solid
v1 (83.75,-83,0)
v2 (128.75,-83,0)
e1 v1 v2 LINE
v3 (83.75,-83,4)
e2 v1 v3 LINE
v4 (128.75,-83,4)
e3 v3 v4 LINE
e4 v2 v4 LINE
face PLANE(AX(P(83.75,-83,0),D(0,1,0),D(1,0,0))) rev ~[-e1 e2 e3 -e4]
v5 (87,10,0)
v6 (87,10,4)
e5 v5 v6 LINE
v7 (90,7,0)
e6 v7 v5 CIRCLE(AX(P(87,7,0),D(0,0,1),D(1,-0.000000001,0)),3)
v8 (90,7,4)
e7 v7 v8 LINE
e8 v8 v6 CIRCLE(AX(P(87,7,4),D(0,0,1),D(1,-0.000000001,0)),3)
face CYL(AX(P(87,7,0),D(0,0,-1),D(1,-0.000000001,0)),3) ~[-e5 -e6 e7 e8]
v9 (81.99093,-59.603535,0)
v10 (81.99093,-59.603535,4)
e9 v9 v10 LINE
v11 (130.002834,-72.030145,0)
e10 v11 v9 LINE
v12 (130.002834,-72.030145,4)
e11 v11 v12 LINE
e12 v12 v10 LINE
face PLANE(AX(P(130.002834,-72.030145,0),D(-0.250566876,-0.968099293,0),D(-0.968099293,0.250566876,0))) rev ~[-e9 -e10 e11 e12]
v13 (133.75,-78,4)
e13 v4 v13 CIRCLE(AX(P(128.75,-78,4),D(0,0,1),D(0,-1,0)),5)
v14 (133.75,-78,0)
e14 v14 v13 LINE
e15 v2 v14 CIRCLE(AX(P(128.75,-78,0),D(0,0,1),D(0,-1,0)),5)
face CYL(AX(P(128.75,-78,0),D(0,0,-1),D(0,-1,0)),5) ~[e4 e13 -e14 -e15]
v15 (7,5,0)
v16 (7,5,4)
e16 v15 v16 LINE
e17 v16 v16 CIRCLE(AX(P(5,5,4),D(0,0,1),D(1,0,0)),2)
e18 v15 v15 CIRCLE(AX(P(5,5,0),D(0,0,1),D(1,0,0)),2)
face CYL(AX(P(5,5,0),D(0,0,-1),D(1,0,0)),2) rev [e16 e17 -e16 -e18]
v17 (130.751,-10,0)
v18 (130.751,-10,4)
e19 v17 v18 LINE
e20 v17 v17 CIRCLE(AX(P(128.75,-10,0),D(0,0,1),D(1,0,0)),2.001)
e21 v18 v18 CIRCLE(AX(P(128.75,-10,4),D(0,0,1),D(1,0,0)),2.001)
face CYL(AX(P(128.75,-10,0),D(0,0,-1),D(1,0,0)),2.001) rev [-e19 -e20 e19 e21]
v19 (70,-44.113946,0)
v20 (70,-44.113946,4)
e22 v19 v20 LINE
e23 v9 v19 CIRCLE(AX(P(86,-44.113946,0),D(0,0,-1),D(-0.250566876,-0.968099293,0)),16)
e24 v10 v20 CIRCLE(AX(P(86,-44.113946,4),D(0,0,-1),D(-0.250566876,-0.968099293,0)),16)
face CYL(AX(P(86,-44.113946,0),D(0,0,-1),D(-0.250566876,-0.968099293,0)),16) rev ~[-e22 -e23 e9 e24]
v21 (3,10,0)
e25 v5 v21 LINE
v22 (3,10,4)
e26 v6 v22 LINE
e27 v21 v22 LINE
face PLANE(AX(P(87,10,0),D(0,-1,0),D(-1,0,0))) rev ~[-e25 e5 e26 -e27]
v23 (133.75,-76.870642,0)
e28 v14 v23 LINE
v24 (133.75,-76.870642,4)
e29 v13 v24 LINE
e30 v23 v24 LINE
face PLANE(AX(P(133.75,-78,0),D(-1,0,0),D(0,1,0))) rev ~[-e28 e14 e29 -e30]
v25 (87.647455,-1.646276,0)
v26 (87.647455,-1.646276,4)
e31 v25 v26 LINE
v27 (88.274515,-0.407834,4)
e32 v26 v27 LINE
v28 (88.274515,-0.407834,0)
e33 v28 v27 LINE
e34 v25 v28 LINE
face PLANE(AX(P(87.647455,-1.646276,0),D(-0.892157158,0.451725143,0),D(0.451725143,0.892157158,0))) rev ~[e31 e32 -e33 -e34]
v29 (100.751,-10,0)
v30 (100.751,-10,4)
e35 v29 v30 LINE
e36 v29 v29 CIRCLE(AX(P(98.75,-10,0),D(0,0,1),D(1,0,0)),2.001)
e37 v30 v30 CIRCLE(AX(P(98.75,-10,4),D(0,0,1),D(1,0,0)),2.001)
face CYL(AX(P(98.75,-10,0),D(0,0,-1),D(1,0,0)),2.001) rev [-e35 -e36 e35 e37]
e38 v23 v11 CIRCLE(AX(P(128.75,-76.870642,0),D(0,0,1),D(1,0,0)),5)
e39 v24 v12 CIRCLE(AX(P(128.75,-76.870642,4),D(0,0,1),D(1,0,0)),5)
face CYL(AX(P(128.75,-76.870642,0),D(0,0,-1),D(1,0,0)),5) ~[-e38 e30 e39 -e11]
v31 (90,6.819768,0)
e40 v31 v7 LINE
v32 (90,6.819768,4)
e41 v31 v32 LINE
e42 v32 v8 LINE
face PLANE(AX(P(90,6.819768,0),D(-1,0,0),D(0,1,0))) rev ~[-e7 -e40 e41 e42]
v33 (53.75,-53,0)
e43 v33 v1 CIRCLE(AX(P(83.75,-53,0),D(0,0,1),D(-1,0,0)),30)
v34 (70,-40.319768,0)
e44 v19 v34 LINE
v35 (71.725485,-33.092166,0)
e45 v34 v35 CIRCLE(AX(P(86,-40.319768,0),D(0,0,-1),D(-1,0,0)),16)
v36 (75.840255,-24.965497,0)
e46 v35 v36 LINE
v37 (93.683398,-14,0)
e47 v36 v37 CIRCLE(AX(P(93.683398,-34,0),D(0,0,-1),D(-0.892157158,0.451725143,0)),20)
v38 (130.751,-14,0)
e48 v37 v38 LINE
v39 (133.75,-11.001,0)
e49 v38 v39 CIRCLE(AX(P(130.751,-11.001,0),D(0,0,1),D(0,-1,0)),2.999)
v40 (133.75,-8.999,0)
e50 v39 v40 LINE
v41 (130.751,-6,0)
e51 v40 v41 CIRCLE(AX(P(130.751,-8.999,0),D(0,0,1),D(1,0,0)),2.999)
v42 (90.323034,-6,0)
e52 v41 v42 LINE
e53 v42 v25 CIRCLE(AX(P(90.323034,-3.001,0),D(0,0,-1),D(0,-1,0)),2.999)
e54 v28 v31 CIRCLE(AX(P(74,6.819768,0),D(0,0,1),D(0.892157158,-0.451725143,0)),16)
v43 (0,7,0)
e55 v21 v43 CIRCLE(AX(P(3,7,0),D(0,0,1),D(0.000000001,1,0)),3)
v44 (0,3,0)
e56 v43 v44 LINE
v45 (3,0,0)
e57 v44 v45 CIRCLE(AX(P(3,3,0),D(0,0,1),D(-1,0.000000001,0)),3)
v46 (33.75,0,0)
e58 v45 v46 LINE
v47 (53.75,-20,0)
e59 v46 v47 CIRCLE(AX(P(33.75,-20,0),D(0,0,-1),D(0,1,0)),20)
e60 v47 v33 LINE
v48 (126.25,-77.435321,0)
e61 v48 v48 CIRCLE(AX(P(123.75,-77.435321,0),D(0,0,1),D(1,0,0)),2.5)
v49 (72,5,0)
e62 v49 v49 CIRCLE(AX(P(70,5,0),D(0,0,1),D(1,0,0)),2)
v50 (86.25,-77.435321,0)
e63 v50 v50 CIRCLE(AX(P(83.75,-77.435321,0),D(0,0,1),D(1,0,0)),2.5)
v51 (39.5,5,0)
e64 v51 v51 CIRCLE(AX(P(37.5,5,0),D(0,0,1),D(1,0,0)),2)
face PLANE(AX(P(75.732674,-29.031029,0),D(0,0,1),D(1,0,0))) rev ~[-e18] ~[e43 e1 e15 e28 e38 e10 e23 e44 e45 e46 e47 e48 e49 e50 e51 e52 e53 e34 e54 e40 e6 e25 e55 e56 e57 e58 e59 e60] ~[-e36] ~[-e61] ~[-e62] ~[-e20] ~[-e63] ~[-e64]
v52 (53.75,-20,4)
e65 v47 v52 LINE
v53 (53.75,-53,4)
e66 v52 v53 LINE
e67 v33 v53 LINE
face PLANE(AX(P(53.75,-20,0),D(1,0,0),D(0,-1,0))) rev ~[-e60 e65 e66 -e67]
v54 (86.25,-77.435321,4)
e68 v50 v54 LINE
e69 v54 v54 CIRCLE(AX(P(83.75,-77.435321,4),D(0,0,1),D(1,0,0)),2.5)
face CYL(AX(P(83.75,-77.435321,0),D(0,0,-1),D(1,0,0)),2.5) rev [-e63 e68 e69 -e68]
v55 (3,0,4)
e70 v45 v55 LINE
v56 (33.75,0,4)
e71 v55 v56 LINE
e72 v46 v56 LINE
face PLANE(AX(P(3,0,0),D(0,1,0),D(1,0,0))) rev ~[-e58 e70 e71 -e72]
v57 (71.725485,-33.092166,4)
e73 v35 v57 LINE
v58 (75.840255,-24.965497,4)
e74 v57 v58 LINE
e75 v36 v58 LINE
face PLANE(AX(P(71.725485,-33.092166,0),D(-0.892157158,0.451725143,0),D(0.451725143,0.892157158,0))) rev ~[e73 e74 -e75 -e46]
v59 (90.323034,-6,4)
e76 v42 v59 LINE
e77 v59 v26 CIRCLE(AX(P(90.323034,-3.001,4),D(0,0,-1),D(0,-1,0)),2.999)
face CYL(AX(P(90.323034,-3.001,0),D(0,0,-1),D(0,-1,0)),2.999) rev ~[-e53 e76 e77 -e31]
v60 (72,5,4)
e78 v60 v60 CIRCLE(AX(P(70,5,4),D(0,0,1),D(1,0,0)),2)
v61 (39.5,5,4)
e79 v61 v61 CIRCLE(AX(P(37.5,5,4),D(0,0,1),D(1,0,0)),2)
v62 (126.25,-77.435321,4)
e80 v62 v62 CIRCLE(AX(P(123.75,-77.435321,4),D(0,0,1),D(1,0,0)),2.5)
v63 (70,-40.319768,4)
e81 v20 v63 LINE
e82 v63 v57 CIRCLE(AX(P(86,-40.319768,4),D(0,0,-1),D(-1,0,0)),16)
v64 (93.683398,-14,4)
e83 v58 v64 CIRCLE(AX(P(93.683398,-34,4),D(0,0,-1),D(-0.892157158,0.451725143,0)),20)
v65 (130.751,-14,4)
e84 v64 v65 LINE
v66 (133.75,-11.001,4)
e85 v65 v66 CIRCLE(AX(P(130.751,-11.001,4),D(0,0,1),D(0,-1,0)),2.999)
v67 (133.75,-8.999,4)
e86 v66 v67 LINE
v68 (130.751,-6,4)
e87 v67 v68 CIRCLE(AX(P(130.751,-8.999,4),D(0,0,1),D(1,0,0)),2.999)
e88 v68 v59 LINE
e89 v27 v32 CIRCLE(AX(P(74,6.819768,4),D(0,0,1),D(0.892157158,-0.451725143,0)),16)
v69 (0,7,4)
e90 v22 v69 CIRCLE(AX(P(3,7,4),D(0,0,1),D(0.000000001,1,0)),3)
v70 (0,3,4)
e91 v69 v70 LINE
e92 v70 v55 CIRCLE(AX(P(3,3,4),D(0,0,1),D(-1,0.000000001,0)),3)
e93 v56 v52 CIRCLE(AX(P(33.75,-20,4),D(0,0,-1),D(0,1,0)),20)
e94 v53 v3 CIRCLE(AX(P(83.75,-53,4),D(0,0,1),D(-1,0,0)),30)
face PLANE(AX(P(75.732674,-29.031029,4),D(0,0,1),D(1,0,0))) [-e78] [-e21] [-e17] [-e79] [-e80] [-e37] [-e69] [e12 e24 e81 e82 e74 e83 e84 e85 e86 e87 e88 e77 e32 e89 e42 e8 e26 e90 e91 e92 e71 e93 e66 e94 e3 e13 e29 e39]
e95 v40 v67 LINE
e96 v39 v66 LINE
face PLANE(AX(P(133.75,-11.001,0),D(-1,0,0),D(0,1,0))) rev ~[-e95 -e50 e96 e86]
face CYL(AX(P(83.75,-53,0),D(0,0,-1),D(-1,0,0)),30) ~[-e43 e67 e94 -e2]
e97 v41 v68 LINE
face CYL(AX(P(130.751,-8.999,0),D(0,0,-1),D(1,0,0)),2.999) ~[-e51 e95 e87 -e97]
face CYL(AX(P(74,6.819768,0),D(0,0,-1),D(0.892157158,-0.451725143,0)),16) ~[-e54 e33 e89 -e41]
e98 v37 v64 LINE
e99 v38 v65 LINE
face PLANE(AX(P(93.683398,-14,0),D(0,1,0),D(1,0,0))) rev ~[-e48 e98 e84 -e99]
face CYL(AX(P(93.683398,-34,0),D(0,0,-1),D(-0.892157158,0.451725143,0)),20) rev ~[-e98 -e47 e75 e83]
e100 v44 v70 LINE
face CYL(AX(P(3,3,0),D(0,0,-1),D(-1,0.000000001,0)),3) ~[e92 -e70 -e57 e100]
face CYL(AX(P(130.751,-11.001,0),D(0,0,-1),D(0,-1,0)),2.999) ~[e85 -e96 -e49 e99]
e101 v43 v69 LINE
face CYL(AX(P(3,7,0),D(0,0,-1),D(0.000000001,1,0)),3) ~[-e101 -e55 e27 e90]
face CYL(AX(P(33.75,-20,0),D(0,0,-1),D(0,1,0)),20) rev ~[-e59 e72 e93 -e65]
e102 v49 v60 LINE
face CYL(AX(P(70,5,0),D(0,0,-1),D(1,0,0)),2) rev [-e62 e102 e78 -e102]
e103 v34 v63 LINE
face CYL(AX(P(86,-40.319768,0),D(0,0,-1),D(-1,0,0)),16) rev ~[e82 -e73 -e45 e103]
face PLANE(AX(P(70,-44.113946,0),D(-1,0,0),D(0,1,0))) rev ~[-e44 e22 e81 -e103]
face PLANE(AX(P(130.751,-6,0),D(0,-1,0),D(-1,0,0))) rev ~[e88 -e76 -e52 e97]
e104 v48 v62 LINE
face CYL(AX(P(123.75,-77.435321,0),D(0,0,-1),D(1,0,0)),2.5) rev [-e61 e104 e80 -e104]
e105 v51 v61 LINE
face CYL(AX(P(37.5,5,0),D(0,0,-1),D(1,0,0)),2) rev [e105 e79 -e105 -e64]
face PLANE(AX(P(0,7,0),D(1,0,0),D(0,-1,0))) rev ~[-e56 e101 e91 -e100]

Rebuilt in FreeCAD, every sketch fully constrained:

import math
import FreeCAD as App
import Part
import Sketcher
from FreeCAD import Vector

doc = App.newDocument("Part")
params = doc.addObject("Spreadsheet::Sheet", "Params")
for row, (alias, value) in enumerate([
    ("sketch1_diameter", "5 mm"),
    ("sketch1_diameter2", "4 mm"),
    ("sketch1_radius", "20 mm"),
    ("sketch1_radius2", "30 mm"),
    ("sketch1_radius3", "5 mm"),
    ("pad1_length", "4 mm"),
], start=1):
    params.set(f"A{row}", alias)
    params.set(f"B{row}", "=" + value)
    params.setAlias(f"B{row}", alias)

body = doc.addObject("PartDesign::Body", "Body")

# Sketch on XY plane
sketch1 = doc.addObject("Sketcher::SketchObject", "Sketch")
body.addObject(sketch1)
sketch1.AttachmentSupport = (doc.XY_Plane, [""])
sketch1.MapMode = "FlatFace"
sketch1.addGeometry([
    Part.LineSegment(Vector(3, 0, 0), Vector(33.75, 0, 0)),  # 0
    Part.ArcOfCircle(Part.Circle(Vector(33.75, -20, 0), Vector(0, 0, 1), 20), math.radians(0), math.radians(90)),  # 1
    Part.LineSegment(Vector(53.75, -20, 0), Vector(53.75, -53, 0)),  # 2
    Part.ArcOfCircle(Part.Circle(Vector(83.75, -53, 0), Vector(0, 0, 1), 30), math.radians(180), math.radians(270)),  # 3
    Part.LineSegment(Vector(83.75, -83, 0), Vector(128.75, -83, 0)),  # 4
    Part.ArcOfCircle(Part.Circle(Vector(128.75, -78, 0), Vector(0, 0, 1), 5), math.radians(-90), math.radians(0)),  # 5
    Part.LineSegment(Vector(133.75, -78, 0), Vector(133.75, -76.87, 0)),  # 6
    Part.ArcOfCircle(Part.Circle(Vector(128.75, -76.87, 0), Vector(0, 0, 1), 5), math.radians(0), math.radians(75)),  # 7
    Part.LineSegment(Vector(130, -72.03, 0), Vector(81.99, -59.6, 0)),  # 8
    Part.ArcOfCircle(Part.Circle(Vector(86, -44.11, 0), Vector(0, 0, 1), 16), math.radians(-180), math.radians(-105)),  # 9
    Part.LineSegment(Vector(70, -44.11, 0), Vector(70, -40.32, 0)),  # 10
    Part.ArcOfCircle(Part.Circle(Vector(86, -40.32, 0), Vector(0, 0, 1), 16), math.radians(153), math.radians(180)),  # 11
    Part.LineSegment(Vector(71.73, -33.09, 0), Vector(75.84, -24.97, 0)),  # 12
    Part.ArcOfCircle(Part.Circle(Vector(93.68, -34, 0), Vector(0, 0, 1), 20), math.radians(90), math.radians(153)),  # 13
    Part.LineSegment(Vector(93.68, -14, 0), Vector(130.75, -14, 0)),  # 14
    Part.ArcOfCircle(Part.Circle(Vector(130.75, -11, 0), Vector(0, 0, 1), 3), math.radians(-90), math.radians(0)),  # 15
    Part.LineSegment(Vector(133.75, -11, 0), Vector(133.75, -9, 0)),  # 16
    Part.ArcOfCircle(Part.Circle(Vector(130.75, -9, 0), Vector(0, 0, 1), 3), math.radians(0), math.radians(90)),  # 17
    Part.LineSegment(Vector(130.75, -6, 0), Vector(90.32, -6, 0)),  # 18
    Part.ArcOfCircle(Part.Circle(Vector(90.32, -3, 0), Vector(0, 0, 1), 3), math.radians(153), math.radians(270)),  # 19
    Part.LineSegment(Vector(87.65, -1.65, 0), Vector(88.27, -0.41, 0)),  # 20
    Part.ArcOfCircle(Part.Circle(Vector(74, 6.82, 0), Vector(0, 0, 1), 16), math.radians(-27), math.radians(0)),  # 21
    Part.LineSegment(Vector(90, 6.82, 0), Vector(90, 7, 0)),  # 22
    Part.ArcOfCircle(Part.Circle(Vector(87, 7, 0), Vector(0, 0, 1), 3), math.radians(0), math.radians(90)),  # 23
    Part.LineSegment(Vector(87, 10, 0), Vector(3, 10, 0)),  # 24
    Part.ArcOfCircle(Part.Circle(Vector(3, 7, 0), Vector(0, 0, 1), 3), math.radians(90), math.radians(180)),  # 25
    Part.LineSegment(Vector(0, 7, 0), Vector(0, 3, 0)),  # 26
    Part.ArcOfCircle(Part.Circle(Vector(3, 3, 0), Vector(0, 0, 1), 3), math.radians(180), math.radians(270)),  # 27
    Part.Circle(Vector(83.75, -77.44, 0), Vector(0, 0, 1), 2.5),  # 28
    Part.Circle(Vector(123.75, -77.44, 0), Vector(0, 0, 1), 2.5),  # 29
    Part.Circle(Vector(5, 5, 0), Vector(0, 0, 1), 2),  # 30
    Part.Circle(Vector(37.5, 5, 0), Vector(0, 0, 1), 2),  # 31
    Part.Circle(Vector(98.75, -10, 0), Vector(0, 0, 1), 2),  # 32
    Part.Circle(Vector(70, 5, 0), Vector(0, 0, 1), 2),  # 33
    Part.Circle(Vector(128.75, -10, 0), Vector(0, 0, 1), 2),  # 34
], False)
sketch1.addConstraint([
    Sketcher.Constraint("Tangent", 0, 2, 1, 2),
    Sketcher.Constraint("Tangent", 1, 1, 2, 1),
    Sketcher.Constraint("Tangent", 2, 2, 3, 1),
    Sketcher.Constraint("Tangent", 3, 2, 4, 1),
    Sketcher.Constraint("Tangent", 4, 2, 5, 1),
    Sketcher.Constraint("Tangent", 5, 2, 6, 1),
    Sketcher.Constraint("Tangent", 6, 2, 7, 1),
    Sketcher.Constraint("Tangent", 7, 2, 8, 1),
    Sketcher.Constraint("Tangent", 8, 2, 9, 2),
    Sketcher.Constraint("Tangent", 9, 1, 10, 1),
    Sketcher.Constraint("Tangent", 10, 2, 11, 2),
    Sketcher.Constraint("Tangent", 11, 1, 12, 1),
    Sketcher.Constraint("Tangent", 12, 2, 13, 2),
    Sketcher.Constraint("Tangent", 13, 1, 14, 1),
    Sketcher.Constraint("Tangent", 14, 2, 15, 1),
    Sketcher.Constraint("Tangent", 15, 2, 16, 1),
    Sketcher.Constraint("Tangent", 16, 2, 17, 1),
    Sketcher.Constraint("Tangent", 17, 2, 18, 1),
    Sketcher.Constraint("Tangent", 18, 2, 19, 2),
    Sketcher.Constraint("Tangent", 19, 1, 20, 1),
    Sketcher.Constraint("Tangent", 20, 2, 21, 1),
    Sketcher.Constraint("Tangent", 21, 2, 22, 1),
    Sketcher.Constraint("Tangent", 22, 2, 23, 1),
    Sketcher.Constraint("Tangent", 23, 2, 24, 1),
    Sketcher.Constraint("Tangent", 24, 2, 25, 1),
    Sketcher.Constraint("Tangent", 25, 2, 26, 1),
    Sketcher.Constraint("Tangent", 26, 2, 27, 1),
    Sketcher.Constraint("Tangent", 27, 2, 0, 1),
    Sketcher.Constraint("Horizontal", 0),
    Sketcher.Constraint("Vertical", 2),
    Sketcher.Constraint("Horizontal", 4),
    Sketcher.Constraint("Vertical", 6),
    Sketcher.Constraint("Vertical", 10),
    Sketcher.Constraint("Horizontal", 14),
    Sketcher.Constraint("Vertical", 16),
    Sketcher.Constraint("Horizontal", 18),
    Sketcher.Constraint("Vertical", 22),
    Sketcher.Constraint("Horizontal", 24),
    Sketcher.Constraint("Vertical", 26),
    Sketcher.Constraint("Equal", 5, 7),
    Sketcher.Constraint("Equal", 9, 11),
    Sketcher.Constraint("Equal", 1, 13),
    Sketcher.Constraint("Equal", 15, 17),
    Sketcher.Constraint("Equal", 17, 19),
    Sketcher.Constraint("Equal", 11, 21),
    Sketcher.Constraint("Equal", 23, 25),
    Sketcher.Constraint("Equal", 25, 27),
    Sketcher.Constraint("Equal", 28, 29),
    Sketcher.Constraint("Equal", 30, 31),
    Sketcher.Constraint("Equal", 31, 33),
    Sketcher.Constraint("Equal", 32, 34),
    Sketcher.Constraint("PointOnObject", 0, 2, -1),
    Sketcher.Constraint("PointOnObject", 25, 2, -2),
    Sketcher.Constraint("Parallel", 12, 20),
    Sketcher.Constraint("Horizontal", 28, 3, 29, 3),
    Sketcher.Constraint("Horizontal", 30, 3, 31, 3),
    Sketcher.Constraint("Horizontal", 31, 3, 33, 3),
    Sketcher.Constraint("Horizontal", 32, 3, 34, 3),
    Sketcher.Constraint("Vertical", 3, 3, 28, 3),
    Sketcher.Constraint("Vertical", 7, 3, 34, 3),
    Sketcher.Constraint("Vertical", 33, 3, 9, 1),
    Sketcher.Constraint("Vertical", 6, 2, 15, 2),
    Sketcher.Constraint("Diameter", 28, 5.0),
    Sketcher.Constraint("Diameter", 30, 4.0),
    Sketcher.Constraint("Radius", 1, 20.0),
    Sketcher.Constraint("Radius", 3, 30.0),
    Sketcher.Constraint("Radius", 5, 5.0),
    Sketcher.Constraint("Radius", 9, 16.0),
    Sketcher.Constraint("Radius", 23, 3.0),
    Sketcher.Constraint("DistanceX", 4, 1, 4, 2, 45.0),
    Sketcher.Constraint("DistanceX", 24, 2, 24, 1, 84.0),
    Sketcher.Constraint("DistanceY", 2, 2, 2, 1, 33.0),
    Sketcher.Constraint("DistanceY", 26, 2, 26, 1, 4.0),
    Sketcher.Constraint("Diameter", 32, 4.002),
    Sketcher.Constraint("DistanceX", -1, 1, 9, 3, 86.0),
    Sketcher.Constraint("DistanceY", 13, 3, -1, 1, 34.0),
    Sketcher.Constraint("DistanceX", -1, 1, 30, 3, 5.0),
    Sketcher.Constraint("DistanceY", -1, 1, 30, 3, 5.0),
    Sketcher.Constraint("DistanceY", 32, 3, -1, 1, 10.0),
    Sketcher.Constraint("DistanceY", 17, 2, -1, 1, 6.0),
    Sketcher.Constraint("Radius", 15, 2.999),
    Sketcher.Constraint("DistanceX", 29, 3, 5, 3, 5.0),
    Sketcher.Constraint("DistanceX", 32, 3, 34, 3, 30.0),
    Sketcher.Constraint("DistanceX", 0, 1, 0, 2, 30.75),
    Sketcher.Constraint("DistanceX", -1, 1, 31, 3, 37.5),
    Sketcher.Constraint("DistanceY", 6, 1, 6, 2, 1.129358),
    Sketcher.Constraint("DistanceY", 22, 1, 22, 2, 0.180232),
    Sketcher.Constraint("Distance", 12, 9.109011),
    Sketcher.Constraint("DistanceX", 14, 1, 14, 2, 37.067602),
    Sketcher.Constraint("DistanceY", 10, 1, 10, 2, 3.794178),
    Sketcher.Constraint("DistanceY", 28, 3, -1, 1, 77.435321),
])
sketch1.setExpression("Constraints[62]", "Params.sketch1_diameter")
sketch1.setExpression("Constraints[63]", "Params.sketch1_diameter2")
sketch1.setExpression("Constraints[64]", "Params.sketch1_radius")
sketch1.setExpression("Constraints[65]", "Params.sketch1_radius2")
sketch1.setExpression("Constraints[66]", "Params.sketch1_radius3")
pad1 = doc.addObject("PartDesign::Pad", "Pad")
body.addObject(pad1)
pad1.Profile = sketch1
pad1.setExpression("Length", "Params.pad1_length")

doc.recompute()
